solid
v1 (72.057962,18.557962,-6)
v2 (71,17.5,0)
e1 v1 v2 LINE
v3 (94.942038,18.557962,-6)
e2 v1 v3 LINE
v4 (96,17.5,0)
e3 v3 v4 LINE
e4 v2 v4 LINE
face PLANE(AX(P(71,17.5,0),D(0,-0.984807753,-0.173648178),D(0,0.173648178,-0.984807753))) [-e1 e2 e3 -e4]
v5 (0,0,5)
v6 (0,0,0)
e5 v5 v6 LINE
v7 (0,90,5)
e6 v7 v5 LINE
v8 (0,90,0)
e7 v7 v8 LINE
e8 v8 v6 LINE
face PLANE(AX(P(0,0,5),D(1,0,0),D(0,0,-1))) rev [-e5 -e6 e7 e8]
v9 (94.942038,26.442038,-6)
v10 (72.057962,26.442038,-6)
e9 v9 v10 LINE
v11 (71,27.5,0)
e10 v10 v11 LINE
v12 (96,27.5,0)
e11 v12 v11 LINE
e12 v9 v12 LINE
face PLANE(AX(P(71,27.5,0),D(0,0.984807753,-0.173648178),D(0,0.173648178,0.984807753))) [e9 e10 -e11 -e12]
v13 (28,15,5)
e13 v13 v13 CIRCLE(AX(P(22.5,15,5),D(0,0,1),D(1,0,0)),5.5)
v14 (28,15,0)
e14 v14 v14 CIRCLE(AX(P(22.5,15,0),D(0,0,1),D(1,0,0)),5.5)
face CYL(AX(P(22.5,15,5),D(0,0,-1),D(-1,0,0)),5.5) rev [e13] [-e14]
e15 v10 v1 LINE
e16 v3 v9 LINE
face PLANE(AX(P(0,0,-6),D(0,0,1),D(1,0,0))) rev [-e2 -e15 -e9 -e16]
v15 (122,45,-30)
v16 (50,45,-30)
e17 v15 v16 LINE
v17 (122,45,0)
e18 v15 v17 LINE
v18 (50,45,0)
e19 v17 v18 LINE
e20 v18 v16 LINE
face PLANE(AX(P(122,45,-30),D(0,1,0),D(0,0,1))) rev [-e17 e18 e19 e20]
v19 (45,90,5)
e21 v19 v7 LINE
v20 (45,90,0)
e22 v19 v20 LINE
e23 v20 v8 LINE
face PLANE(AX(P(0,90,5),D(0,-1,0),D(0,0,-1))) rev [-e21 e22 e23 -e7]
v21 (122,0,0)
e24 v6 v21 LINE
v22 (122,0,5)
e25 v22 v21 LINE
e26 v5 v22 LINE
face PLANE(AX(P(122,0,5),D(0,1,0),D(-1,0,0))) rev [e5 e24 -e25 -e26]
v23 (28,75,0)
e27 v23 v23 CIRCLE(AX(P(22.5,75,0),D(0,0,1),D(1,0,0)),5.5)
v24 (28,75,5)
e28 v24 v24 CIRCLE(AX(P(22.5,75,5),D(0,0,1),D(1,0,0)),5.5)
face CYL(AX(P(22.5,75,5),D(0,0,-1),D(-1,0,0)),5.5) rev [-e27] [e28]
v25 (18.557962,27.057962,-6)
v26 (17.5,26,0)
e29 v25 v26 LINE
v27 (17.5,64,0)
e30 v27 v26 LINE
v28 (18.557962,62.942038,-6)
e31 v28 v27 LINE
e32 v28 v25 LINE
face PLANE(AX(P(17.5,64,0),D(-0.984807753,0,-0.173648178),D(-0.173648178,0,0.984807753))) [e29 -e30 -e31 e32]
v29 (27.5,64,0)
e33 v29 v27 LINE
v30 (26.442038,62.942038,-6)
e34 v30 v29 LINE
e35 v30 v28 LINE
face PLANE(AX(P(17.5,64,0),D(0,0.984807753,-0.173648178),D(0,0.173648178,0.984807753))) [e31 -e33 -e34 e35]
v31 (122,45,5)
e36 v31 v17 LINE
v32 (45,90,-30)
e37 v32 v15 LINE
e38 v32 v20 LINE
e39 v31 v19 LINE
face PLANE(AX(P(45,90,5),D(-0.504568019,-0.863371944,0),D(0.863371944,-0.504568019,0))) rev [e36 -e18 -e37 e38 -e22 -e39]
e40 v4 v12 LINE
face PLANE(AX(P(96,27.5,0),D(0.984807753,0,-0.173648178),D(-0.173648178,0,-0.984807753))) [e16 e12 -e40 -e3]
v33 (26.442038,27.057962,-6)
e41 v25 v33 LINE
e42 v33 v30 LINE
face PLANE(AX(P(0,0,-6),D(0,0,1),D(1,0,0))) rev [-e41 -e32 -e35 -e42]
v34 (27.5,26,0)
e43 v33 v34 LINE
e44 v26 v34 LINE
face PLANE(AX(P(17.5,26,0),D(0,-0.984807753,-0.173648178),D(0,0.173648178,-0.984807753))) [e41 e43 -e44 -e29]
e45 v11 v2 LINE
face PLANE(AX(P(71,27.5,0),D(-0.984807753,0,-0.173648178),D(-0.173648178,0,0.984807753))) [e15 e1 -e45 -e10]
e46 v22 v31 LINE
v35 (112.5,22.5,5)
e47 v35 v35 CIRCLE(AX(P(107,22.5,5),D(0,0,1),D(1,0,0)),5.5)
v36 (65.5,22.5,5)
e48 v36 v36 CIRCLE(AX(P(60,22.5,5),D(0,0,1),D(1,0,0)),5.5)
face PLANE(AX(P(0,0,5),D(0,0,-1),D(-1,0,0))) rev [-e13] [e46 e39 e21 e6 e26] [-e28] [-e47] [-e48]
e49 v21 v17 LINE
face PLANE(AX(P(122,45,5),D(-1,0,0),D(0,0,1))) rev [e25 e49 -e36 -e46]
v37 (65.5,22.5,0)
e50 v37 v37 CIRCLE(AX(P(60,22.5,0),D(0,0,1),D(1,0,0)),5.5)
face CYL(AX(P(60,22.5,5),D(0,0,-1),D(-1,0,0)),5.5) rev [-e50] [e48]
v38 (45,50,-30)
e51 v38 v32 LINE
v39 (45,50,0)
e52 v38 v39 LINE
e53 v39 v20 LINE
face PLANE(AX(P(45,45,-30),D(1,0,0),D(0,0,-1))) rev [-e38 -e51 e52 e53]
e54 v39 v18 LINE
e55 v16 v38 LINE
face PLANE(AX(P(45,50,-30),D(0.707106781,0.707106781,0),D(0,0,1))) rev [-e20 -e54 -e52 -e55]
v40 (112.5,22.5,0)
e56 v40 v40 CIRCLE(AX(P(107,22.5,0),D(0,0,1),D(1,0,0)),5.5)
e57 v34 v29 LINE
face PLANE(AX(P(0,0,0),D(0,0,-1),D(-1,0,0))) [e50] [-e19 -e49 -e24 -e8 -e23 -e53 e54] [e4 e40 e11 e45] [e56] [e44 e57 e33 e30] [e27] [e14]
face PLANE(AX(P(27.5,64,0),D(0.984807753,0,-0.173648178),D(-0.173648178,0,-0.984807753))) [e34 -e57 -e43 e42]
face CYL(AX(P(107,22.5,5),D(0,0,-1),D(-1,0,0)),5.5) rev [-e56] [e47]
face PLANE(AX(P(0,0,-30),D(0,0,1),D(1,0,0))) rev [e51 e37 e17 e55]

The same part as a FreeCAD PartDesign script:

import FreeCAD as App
import Part
import Sketcher


def edges_at(feature, points):
    """Names of the edges that pass closest to the given points."""
    edges = feature.Shape.Edges
    near = lambda p: min(range(len(edges)), key=lambda i: edges[i].distToShape(Part.Vertex(*p))[0])
    return sorted({f"Edge{near(p) + 1}" for p in points})


def faces_at(feature, points):
    """Names of the faces that lie closest to the given points."""
    faces = feature.Shape.Faces
    near = lambda p: min(range(len(faces)), key=lambda i: faces[i].distToShape(Part.Vertex(*p))[0])
    return sorted({f"Face{near(p) + 1}" for p in points})

doc = App.newDocument("Part")
body = doc.addObject("PartDesign::Body", "Body")

# Sketch on XY plane
sketch1 = body.newObject("Sketcher::SketchObject", "Sketch")
sketch1.AttachmentSupport = (doc.getObject("XY_Plane"), [""])
sketch1.MapMode = "FlatFace"
sketch1.addGeometry(Part.LineSegment(App.Vector(0, 90, 0), App.Vector(0, 0, 0)), False)
sketch1.addGeometry(Part.LineSegment(App.Vector(0, 0, 0), App.Vector(122, 0, 0)), False)
sketch1.addGeometry(Part.LineSegment(App.Vector(122, 0, 0), App.Vector(122, 45, 0)), False)
sketch1.addGeometry(Part.LineSegment(App.Vector(122, 45, 0), App.Vector(45, 90, 0)), False)
sketch1.addGeometry(Part.LineSegment(App.Vector(45, 90, 0), App.Vector(0, 90, 0)), False)
sketch1.addGeometry(Part.Circle(App.Vector(107, 22, 0), App.Vector(0, 0, 1), 6), False)
sketch1.addGeometry(Part.Circle(App.Vector(60, 22, 0), App.Vector(0, 0, 1), 6), False)
sketch1.addGeometry(Part.Circle(App.Vector(22, 15, 0), App.Vector(0, 0, 1), 6), False)
sketch1.addGeometry(Part.Circle(App.Vector(22, 75, 0), App.Vector(0, 0, 1), 6), False)
sketch1.addConstraint(Sketcher.Constraint("Coincident", 0, 2, 1, 1))
sketch1.addConstraint(Sketcher.Constraint("Coincident", 1, 2, 2, 1))
sketch1.addConstraint(Sketcher.Constraint("Coincident", 2, 2, 3, 1))
sketch1.addConstraint(Sketcher.Constraint("Coincident", 3, 2, 4, 1))
sketch1.addConstraint(Sketcher.Constraint("Coincident", 4, 2, 0, 1))
sketch1.addConstraint(Sketcher.Constraint("Vertical", 0))
sketch1.addConstraint(Sketcher.Constraint("Horizontal", 1))
sketch1.addConstraint(Sketcher.Constraint("Vertical", 2))
sketch1.addConstraint(Sketcher.Constraint("Horizontal", 4))
sketch1.addConstraint(Sketcher.Constraint("Coincident", 0, 2, -1, 1))
sketch1.addConstraint(Sketcher.Constraint("Equal", 5, 6))
sketch1.addConstraint(Sketcher.Constraint("Equal", 6, 7))
sketch1.addConstraint(Sketcher.Constraint("Equal", 7, 8))
sketch1.addConstraint(Sketcher.Constraint("Horizontal", 5, 3, 6, 3))
sketch1.addConstraint(Sketcher.Constraint("Vertical", 7, 3, 8, 3))
sketch1.addConstraint(Sketcher.Constraint("Equal", 4, 2))
sketch1.addConstraint(Sketcher.Constraint("Diameter", 5, 11.0))
sketch1.addConstraint(Sketcher.Constraint("DistanceX", 1, 1, 1, 2, 122.0))
sketch1.addConstraint(Sketcher.Constraint("DistanceX", 4, 2, 4, 1, 45.0))
sketch1.addConstraint(Sketcher.Constraint("DistanceY", 0, 2, 0, 1, 90.0))
sketch1.addConstraint(Sketcher.Constraint("DistanceX", -1, 1, 5, 3, 107.0))
sketch1.addConstraint(Sketcher.Constraint("DistanceX", -1, 1, 6, 3, 60.0))
sketch1.addConstraint(Sketcher.Constraint("DistanceY", -1, 1, 7, 3, 15.0))
sketch1.addConstraint(Sketcher.Constraint("DistanceY", -1, 1, 8, 3, 75.0))
sketch1.addConstraint(Sketcher.Constraint("DistanceY", -1, 1, 5, 3, 22.5))
sketch1.addConstraint(Sketcher.Constraint("DistanceX", -1, 1, 7, 3, 22.5))
pad1 = body.newObject("PartDesign::Pad", "Pad")
pad1.Profile = sketch1
pad1.Length = 5

# Sketch on XY plane
sketch2 = body.newObject("Sketcher::SketchObject", "Sketch001")
sketch2.AttachmentSupport = (doc.getObject("XY_Plane"), [""])
sketch2.MapMode = "FlatFace"
sketch2.addGeometry(Part.LineSegment(App.Vector(18, 64, 0), App.Vector(18, 26, 0)), False)
sketch2.addGeometry(Part.LineSegment(App.Vector(18, 26, 0), App.Vector(28, 26, 0)), False)
sketch2.addGeometry(Part.LineSegment(App.Vector(28, 26, 0), App.Vector(28, 64, 0)), False)
sketch2.addGeometry(Part.LineSegment(App.Vector(28, 64, 0), App.Vector(18, 64, 0)), False)
sketch2.addGeometry(Part.LineSegment(App.Vector(71, 28, 0), App.Vector(71, 18, 0)), False)
sketch2.addGeometry(Part.LineSegment(App.Vector(71, 18, 0), App.Vector(96, 18, 0)), False)
sketch2.addGeometry(Part.LineSegment(App.Vector(96, 18, 0), App.Vector(96, 28, 0)), False)
sketch2.addGeometry(Part.LineSegment(App.Vector(96, 28, 0), App.Vector(71, 28, 0)), False)
sketch2.addConstraint(Sketcher.Constraint("Coincident", 0, 2, 1, 1))
sketch2.addConstraint(Sketcher.Constraint("Coincident", 1, 2, 2, 1))
sketch2.addConstraint(Sketcher.Constraint("Coincident", 2, 2, 3, 1))
sketch2.addConstraint(Sketcher.Constraint("Coincident", 3, 2, 0, 1))
sketch2.addConstraint(Sketcher.Constraint("Coincident", 4, 2, 5, 1))
sketch2.addConstraint(Sketcher.Constraint("Coincident", 5, 2, 6, 1))
sketch2.addConstraint(Sketcher.Constraint("Coincident", 6, 2, 7, 1))
sketch2.addConstraint(Sketcher.Constraint("Coincident", 7, 2, 4, 1))
sketch2.addConstraint(Sketcher.Constraint("Vertical", 0))
sketch2.addConstraint(Sketcher.Constraint("Horizontal", 1))
sketch2.addConstraint(Sketcher.Constraint("Vertical", 2))
sketch2.addConstraint(Sketcher.Constraint("Horizontal", 3))
sketch2.addConstraint(Sketcher.Constraint("Vertical", 4))
sketch2.addConstraint(Sketcher.Constraint("Horizontal", 5))
sketch2.addConstraint(Sketcher.Constraint("Vertical", 6))
sketch2.addConstraint(Sketcher.Constraint("Horizontal", 7))
sketch2.addConstraint(Sketcher.Constraint("Equal", 3, 4))
sketch2.addConstraint(Sketcher.Constraint("DistanceX", 1, 1, 1, 2, 10.0))
sketch2.addConstraint(Sketcher.Constraint("DistanceX", 5, 1, 5, 2, 25.0))
sketch2.addConstraint(Sketcher.Constraint("DistanceY", 0, 2, 0, 1, 38.0))
sketch2.addConstraint(Sketcher.Constraint("DistanceY", -1, 1, 0, 2, 26.0))
sketch2.addConstraint(Sketcher.Constraint("DistanceX", -1, 1, 4, 2, 71.0))
sketch2.addConstraint(Sketcher.Constraint("DistanceX", -1, 1, 0, 2, 17.5))
sketch2.addConstraint(Sketcher.Constraint("DistanceY", -1, 1, 4, 2, 17.5))
pad2 = body.newObject("PartDesign::Pad", "Pad001")
pad2.Profile = sketch2
pad2.Length = 6
pad2.Reversed = True
doc.recompute()

draft = body.newObject("PartDesign::Draft", "Draft")
draft.Base = (pad2, faces_at(pad2, [
    (83.5, 27.5, -3),
    (96, 22.5, -3),
    (71, 22.5, -3),
    (83.5, 17.5, -3),
    (22.5, 26, -3),
    (27.5, 45, -3),
    (22.5, 64, -3),
    (17.5, 45, -3),
]))
draft.NeutralPlane = (doc.getObject("XY_Plane"), [""])
draft.Angle = 10
draft.Reversed = True

# Sketch on XY plane
sketch3 = body.newObject("Sketcher::SketchObject", "Sketch002")
sketch3.AttachmentSupport = (doc.getObject("XY_Plane"), [""])
sketch3.MapMode = "FlatFace"
sketch3.addGeometry(Part.LineSegment(App.Vector(122, 45, 0), App.Vector(45, 45, 0)), False)
sketch3.addGeometry(Part.LineSegment(App.Vector(45, 45, 0), App.Vector(45, 90, 0)), False)
sketch3.addGeometry(Part.LineSegment(App.Vector(45, 90, 0), App.Vector(122, 45, 0)), False)
sketch3.addConstraint(Sketcher.Constraint("Coincident", 0, 2, 1, 1))
sketch3.addConstraint(Sketcher.Constraint("Coincident", 1, 2, 2, 1))
sketch3.addConstraint(Sketcher.Constraint("Coincident", 2, 2, 0, 1))
sketch3.addConstraint(Sketcher.Constraint("Horizontal", 0))
sketch3.addConstraint(Sketcher.Constraint("Vertical", 1))
sketch3.addConstraint(Sketcher.Constraint("DistanceX", 0, 2, 0, 1, 77.0))
sketch3.addConstraint(Sketcher.Constraint("DistanceY", 1, 1, 1, 2, 45.0))
sketch3.addConstraint(Sketcher.Constraint("DistanceX", -1, 1, 0, 2, 45.0))
sketch3.addConstraint(Sketcher.Constraint("DistanceY", -1, 1, 0, 2, 45.0))
pad3 = body.newObject("PartDesign::Pad", "Pad002")
pad3.Profile = sketch3
pad3.Length = 30
pad3.Reversed = True
doc.recompute()

chamfer = body.newObject("PartDesign::Chamfer", "Chamfer")
chamfer.Base = (pad3, edges_at(pad3, [(45, 45, -15)]))
chamfer.Size = 5

doc.recompute()
